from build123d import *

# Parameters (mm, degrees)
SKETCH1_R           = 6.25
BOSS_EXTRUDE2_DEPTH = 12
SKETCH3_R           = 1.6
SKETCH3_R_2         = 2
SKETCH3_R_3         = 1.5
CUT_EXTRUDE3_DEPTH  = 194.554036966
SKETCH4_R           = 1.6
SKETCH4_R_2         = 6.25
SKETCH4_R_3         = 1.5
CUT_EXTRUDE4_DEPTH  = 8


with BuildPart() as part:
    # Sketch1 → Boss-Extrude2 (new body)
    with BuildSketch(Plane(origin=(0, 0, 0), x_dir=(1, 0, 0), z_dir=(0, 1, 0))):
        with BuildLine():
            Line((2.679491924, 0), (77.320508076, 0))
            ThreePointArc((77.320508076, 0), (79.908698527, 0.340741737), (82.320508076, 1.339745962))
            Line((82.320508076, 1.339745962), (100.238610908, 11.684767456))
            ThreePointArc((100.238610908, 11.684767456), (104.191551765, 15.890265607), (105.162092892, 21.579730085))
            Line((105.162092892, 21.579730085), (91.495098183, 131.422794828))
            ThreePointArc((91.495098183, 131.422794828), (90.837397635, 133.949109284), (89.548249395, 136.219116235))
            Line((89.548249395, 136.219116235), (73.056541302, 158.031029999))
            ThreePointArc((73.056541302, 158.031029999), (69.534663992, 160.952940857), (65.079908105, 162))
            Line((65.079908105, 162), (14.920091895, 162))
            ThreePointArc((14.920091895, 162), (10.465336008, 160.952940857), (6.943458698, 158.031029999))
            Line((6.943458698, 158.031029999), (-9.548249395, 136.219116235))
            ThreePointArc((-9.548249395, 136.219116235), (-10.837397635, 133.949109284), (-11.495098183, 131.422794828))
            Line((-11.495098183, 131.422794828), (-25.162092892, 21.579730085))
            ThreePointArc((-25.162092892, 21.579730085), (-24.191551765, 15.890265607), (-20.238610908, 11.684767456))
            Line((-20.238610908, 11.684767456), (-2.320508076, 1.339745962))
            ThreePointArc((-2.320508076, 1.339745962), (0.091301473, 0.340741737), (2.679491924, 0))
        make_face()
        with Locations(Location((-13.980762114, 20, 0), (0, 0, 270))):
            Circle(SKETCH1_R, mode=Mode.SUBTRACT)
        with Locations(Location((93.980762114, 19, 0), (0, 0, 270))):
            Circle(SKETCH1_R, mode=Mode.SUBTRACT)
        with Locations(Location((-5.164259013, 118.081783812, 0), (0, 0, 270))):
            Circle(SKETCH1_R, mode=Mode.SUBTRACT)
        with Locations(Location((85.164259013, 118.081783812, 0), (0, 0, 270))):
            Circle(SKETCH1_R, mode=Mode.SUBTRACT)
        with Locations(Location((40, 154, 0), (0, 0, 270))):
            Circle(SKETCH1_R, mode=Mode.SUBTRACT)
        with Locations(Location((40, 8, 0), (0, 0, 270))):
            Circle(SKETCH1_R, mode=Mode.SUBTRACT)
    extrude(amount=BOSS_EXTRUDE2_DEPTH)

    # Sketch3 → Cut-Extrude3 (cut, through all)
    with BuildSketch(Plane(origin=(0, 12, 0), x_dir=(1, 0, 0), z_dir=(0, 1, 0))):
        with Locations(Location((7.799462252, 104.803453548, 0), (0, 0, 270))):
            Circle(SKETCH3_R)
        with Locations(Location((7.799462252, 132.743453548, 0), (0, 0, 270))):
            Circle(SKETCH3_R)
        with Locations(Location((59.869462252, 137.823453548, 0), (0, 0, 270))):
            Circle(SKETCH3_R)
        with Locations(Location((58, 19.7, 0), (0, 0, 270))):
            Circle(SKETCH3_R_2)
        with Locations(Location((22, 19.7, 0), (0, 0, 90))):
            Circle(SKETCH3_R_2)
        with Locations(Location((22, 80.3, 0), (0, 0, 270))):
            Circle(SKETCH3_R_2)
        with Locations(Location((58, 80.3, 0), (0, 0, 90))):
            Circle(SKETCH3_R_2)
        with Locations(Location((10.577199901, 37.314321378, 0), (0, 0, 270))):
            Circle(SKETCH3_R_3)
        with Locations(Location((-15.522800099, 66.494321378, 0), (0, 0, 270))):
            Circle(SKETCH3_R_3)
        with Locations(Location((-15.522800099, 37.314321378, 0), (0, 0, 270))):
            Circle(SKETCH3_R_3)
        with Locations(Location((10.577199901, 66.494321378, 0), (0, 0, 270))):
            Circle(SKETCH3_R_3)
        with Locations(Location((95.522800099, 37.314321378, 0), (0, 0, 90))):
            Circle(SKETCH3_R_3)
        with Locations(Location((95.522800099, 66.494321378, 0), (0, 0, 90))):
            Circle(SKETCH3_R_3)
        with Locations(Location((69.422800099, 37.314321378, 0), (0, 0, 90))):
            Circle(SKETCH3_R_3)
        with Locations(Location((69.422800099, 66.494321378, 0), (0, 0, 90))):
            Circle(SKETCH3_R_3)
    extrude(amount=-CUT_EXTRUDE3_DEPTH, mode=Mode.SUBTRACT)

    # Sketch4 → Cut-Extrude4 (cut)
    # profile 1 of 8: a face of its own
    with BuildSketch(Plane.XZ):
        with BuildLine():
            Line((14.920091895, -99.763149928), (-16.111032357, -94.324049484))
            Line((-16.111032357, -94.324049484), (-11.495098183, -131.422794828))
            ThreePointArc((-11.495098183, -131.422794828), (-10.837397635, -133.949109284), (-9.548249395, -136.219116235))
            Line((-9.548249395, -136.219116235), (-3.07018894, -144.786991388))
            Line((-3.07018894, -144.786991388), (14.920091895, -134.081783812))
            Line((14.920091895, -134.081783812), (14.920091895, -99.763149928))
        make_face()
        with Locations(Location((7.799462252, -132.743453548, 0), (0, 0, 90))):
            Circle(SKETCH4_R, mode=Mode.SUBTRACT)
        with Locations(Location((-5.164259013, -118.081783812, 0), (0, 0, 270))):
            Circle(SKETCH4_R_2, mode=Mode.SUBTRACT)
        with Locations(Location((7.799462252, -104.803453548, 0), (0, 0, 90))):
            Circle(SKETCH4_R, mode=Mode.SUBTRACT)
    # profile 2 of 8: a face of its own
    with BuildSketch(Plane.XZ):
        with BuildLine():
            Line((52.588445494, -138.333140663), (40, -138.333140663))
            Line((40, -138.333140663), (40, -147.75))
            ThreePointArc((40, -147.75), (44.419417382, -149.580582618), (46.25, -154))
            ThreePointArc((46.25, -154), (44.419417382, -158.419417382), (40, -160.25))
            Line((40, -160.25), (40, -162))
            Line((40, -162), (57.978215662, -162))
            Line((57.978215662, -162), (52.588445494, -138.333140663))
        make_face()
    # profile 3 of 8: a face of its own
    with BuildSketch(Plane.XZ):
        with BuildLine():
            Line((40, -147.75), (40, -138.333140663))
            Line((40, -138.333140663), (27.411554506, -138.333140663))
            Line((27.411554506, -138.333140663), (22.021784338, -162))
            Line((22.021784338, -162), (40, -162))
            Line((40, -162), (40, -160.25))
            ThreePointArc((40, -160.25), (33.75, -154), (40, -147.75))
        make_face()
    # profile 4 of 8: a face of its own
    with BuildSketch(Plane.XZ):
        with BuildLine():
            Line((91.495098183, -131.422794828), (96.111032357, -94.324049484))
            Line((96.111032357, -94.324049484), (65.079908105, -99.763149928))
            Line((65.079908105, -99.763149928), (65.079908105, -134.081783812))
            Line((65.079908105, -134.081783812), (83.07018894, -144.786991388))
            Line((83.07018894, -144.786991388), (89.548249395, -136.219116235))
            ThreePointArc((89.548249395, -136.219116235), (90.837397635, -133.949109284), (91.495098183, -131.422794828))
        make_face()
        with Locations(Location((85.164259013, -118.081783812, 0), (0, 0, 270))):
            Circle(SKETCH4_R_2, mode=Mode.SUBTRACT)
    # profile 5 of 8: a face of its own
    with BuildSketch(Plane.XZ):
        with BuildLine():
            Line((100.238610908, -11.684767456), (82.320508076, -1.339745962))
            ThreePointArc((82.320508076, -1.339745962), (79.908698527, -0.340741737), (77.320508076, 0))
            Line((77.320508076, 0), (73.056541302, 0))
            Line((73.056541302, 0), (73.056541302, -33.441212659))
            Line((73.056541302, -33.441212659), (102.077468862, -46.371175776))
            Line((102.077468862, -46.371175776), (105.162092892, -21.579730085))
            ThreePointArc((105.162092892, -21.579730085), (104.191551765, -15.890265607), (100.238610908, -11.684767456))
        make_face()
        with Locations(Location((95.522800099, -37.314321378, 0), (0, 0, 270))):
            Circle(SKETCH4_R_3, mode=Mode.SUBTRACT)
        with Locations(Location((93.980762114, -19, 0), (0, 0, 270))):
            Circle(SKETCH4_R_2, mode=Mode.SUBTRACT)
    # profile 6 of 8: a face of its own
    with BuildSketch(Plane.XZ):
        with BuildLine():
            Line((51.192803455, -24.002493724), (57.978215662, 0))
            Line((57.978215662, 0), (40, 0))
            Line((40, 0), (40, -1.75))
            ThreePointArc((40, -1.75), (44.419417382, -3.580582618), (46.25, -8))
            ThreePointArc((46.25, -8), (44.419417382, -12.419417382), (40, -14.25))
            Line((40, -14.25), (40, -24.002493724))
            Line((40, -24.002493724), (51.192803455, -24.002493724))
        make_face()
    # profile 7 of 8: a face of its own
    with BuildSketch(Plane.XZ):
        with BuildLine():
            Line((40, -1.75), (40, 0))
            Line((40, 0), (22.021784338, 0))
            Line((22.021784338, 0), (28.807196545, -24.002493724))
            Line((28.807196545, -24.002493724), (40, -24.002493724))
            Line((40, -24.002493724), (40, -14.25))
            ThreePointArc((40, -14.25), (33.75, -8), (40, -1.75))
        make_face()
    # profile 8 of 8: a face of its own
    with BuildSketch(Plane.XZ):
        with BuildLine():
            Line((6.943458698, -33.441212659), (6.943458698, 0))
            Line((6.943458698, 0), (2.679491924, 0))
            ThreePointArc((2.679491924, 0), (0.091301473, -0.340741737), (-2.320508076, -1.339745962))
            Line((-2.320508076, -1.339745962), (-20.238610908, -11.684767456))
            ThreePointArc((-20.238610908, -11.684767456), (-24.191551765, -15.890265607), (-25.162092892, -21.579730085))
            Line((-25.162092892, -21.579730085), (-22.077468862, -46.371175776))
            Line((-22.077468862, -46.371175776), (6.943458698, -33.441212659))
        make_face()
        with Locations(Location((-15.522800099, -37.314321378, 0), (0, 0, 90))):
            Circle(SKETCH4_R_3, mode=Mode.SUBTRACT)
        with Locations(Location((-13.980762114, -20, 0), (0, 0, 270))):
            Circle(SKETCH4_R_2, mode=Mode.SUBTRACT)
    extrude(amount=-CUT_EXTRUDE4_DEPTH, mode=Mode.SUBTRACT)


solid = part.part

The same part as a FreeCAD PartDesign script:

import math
import FreeCAD as App
import Part
import Sketcher
from FreeCAD import Vector
Q = App.Units.Quantity

doc = App.newDocument("Part")
body = doc.addObject("PartDesign::Body", "Body")

sketch1 = body.newObject("Sketcher::SketchObject", "Sketch")
sketch1.AttachmentSupport = (doc.getObject("XZ_Plane"), [""])
sketch1.MapMode = "FlatFace"
sketch1.addGeometry([
    Part.LineSegment(Vector(3, 0, 0), Vector(77, 0, 0)),
    Part.ArcOfCircle(Part.Circle(Vector(77, -10, 0), Vector(0, 0, 1), 10), math.radians(60), math.radians(90)),
    Part.LineSegment(Vector(82, -1, 0), Vector(100, -12, 0)),
    Part.ArcOfCircle(Part.Circle(Vector(95, -20, 0), Vector(0, 0, 1), 10), math.radians(-7), math.radians(60)),
    Part.LineSegment(Vector(105, -22, 0), Vector(91, -131, 0)),
    Part.ArcOfCircle(Part.Circle(Vector(82, -130, 0), Vector(0, 0, 1), 10), math.radians(-37), math.radians(-7)),
    Part.LineSegment(Vector(90, -136, 0), Vector(73, -158, 0)),
    Part.ArcOfCircle(Part.Circle(Vector(65, -152, 0), Vector(0, 0, 1), 10), math.radians(-90), math.radians(-37)),
    Part.LineSegment(Vector(65, -162, 0), Vector(15, -162, 0)),
    Part.ArcOfCircle(Part.Circle(Vector(15, -152, 0), Vector(0, 0, 1), 10), math.radians(-143), math.radians(-90)),
    Part.LineSegment(Vector(7, -158, 0), Vector(-10, -136, 0)),
    Part.ArcOfCircle(Part.Circle(Vector(-2, -130, 0), Vector(0, 0, 1), 10), math.radians(-173), math.radians(-143)),
    Part.LineSegment(Vector(-11, -131, 0), Vector(-25, -22, 0)),
    Part.ArcOfCircle(Part.Circle(Vector(-15, -20, 0), Vector(0, 0, 1), 10), math.radians(120), math.radians(187)),
    Part.LineSegment(Vector(-20, -12, 0), Vector(-2, -1, 0)),
    Part.ArcOfCircle(Part.Circle(Vector(3, -10, 0), Vector(0, 0, 1), 10), math.radians(90), math.radians(120)),
    Part.Circle(Vector(-14, -20, 0), Vector(0, 0, 1), 6),
    Part.Circle(Vector(40, -8, 0), Vector(0, 0, 1), 6),
    Part.Circle(Vector(94, -19, 0), Vector(0, 0, 1), 6),
    Part.Circle(Vector(-5, -118, 0), Vector(0, 0, 1), 6),
    Part.Circle(Vector(40, -154, 0), Vector(0, 0, 1), 6),
    Part.Circle(Vector(85, -118, 0), Vector(0, 0, 1), 6),
], False)
sketch1.addConstraint([
    Sketcher.Constraint("Tangent", 0, 2, 1, 2),
    Sketcher.Constraint("Tangent", 1, 1, 2, 1),
    Sketcher.Constraint("Tangent", 2, 2, 3, 2),
    Sketcher.Constraint("Tangent", 3, 1, 4, 1),
    Sketcher.Constraint("Tangent", 4, 2, 5, 2),
    Sketcher.Constraint("Tangent", 5, 1, 6, 1),
    Sketcher.Constraint("Tangent", 6, 2, 7, 2),
    Sketcher.Constraint("Tangent", 7, 1, 8, 1),
    Sketcher.Constraint("Tangent", 8, 2, 9, 2),
    Sketcher.Constraint("Tangent", 9, 1, 10, 1),
    Sketcher.Constraint("Tangent", 10, 2, 11, 2),
    Sketcher.Constraint("Tangent", 11, 1, 12, 1),
    Sketcher.Constraint("Tangent", 12, 2, 13, 2),
    Sketcher.Constraint("Tangent", 13, 1, 14, 1),
    Sketcher.Constraint("Tangent", 14, 2, 15, 2),
    Sketcher.Constraint("Tangent", 15, 1, 0, 1),
    Sketcher.Constraint("Horizontal", 0),
    Sketcher.Constraint("Horizontal", 8),
    Sketcher.Constraint("Equal", 1, 3),
    Sketcher.Constraint("Equal", 3, 5),
    Sketcher.Constraint("Equal", 5, 7),
    Sketcher.Constraint("Equal", 7, 9),
    Sketcher.Constraint("Equal", 9, 11),
    Sketcher.Constraint("Equal", 11, 13),
    Sketcher.Constraint("Equal", 13, 15),
    Sketcher.Constraint("Equal", 16, 17),
    Sketcher.Constraint("Equal", 17, 18),
    Sketcher.Constraint("Equal", 18, 19),
    Sketcher.Constraint("Equal", 19, 20),
    Sketcher.Constraint("Equal", 20, 21),
    Sketcher.Constraint("PointOnObject", 0, 2, -1),
    Sketcher.Constraint("Horizontal", 5, 3, 11, 3),
    Sketcher.Constraint("Horizontal", 3, 3, 13, 3),
    Sketcher.Constraint("Horizontal", 19, 3, 21, 3),
    Sketcher.Constraint("Horizontal", 6, 2, 9, 1),
    Sketcher.Constraint("Horizontal", 4, 2, 11, 1),
    Sketcher.Constraint("Horizontal", 2, 2, 13, 1),
    Sketcher.Constraint("Vertical", 17, 3, 20, 3),
    Sketcher.Constraint("Radius", 1, 10.0),
    Sketcher.Constraint("Diameter", 16, 12.5),
    Sketcher.Constraint("Angle", 2, Q("-30 deg")),
    Sketcher.Constraint("DistanceY", 7, 3, -1, 1, 152.0),
    Sketcher.Constraint("DistanceY", 16, 3, -1, 1, 20.0),
    Sketcher.Constraint("DistanceX", -1, 1, 17, 3, 40.0),
    Sketcher.Constraint("DistanceY", 17, 3, -1, 1, 8.0),
    Sketcher.Constraint("DistanceY", 18, 3, -1, 1, 19.0),
    Sketcher.Constraint("DistanceY", 20, 3, -1, 1, 154.0),
    Sketcher.Constraint("DistanceX", -1, 1, 4, 2, 91.495098),
    Sketcher.Constraint("DistanceX", 11, 1, -1, 1, 11.495098),
    Sketcher.Constraint("DistanceX", 7, 3, 1, 3, 12.2406),
    Sketcher.Constraint("DistanceX", 0, 1, 0, 2, 74.641016),
    Sketcher.Constraint("DistanceX", -1, 1, 3, 3, 95.238611),
    Sketcher.Constraint("DistanceX", 19, 3, -1, 1, 5.164259),
    Sketcher.Constraint("DistanceX", -1, 1, 21, 3, 85.164259),
    Sketcher.Constraint("DistanceX", -1, 1, 5, 1, 89.548249),
    Sketcher.Constraint("DistanceX", 13, 3, 16, 3, 1.257849),
    Sketcher.Constraint("DistanceX", 18, 3, 3, 3, 1.257849),
    Sketcher.Constraint("DistanceY", 4, 2, 21, 3, 13.341011),
])
pad1 = body.newObject("PartDesign::Pad", "Pad")
pad1.Profile = sketch1
pad1.Length = 12
pad1.Reversed = True

sketch2 = body.newObject("Sketcher::SketchObject", "Sketch001")
sketch2.AttachmentSupport = (doc.getObject("XZ_Plane"), [""])
sketch2.MapMode = "FlatFace"
sketch2.AttachmentOffset = App.Placement(Vector(0, 0, -12), App.Rotation())
sketch2.addGeometry([
    Part.Circle(Vector(7.8, -104.8, 0), Vector(0, 0, 1), 1.6),
    Part.Circle(Vector(7.8, -132.7, 0), Vector(0, 0, 1), 1.6),
    Part.Circle(Vector(59.9, -137.8, 0), Vector(0, 0, 1), 1.6),
    Part.Circle(Vector(58, -19.7, 0), Vector(0, 0, 1), 2),
    Part.Circle(Vector(22, -19.7, 0), Vector(0, 0, 1), 2),
    Part.Circle(Vector(22, -80.3, 0), Vector(0, 0, 1), 2),
    Part.Circle(Vector(58, -80.3, 0), Vector(0, 0, 1), 2),
    Part.Circle(Vector(10.6, -37.3, 0), Vector(0, 0, 1), 1.5),
    Part.Circle(Vector(-15.5, -66.5, 0), Vector(0, 0, 1), 1.5),
    Part.Circle(Vector(-15.5, -37.3, 0), Vector(0, 0, 1), 1.5),
    Part.Circle(Vector(10.6, -66.5, 0), Vector(0, 0, 1), 1.5),
    Part.Circle(Vector(95.5, -37.3, 0), Vector(0, 0, 1), 1.5),
    Part.Circle(Vector(95.5, -66.5, 0), Vector(0, 0, 1), 1.5),
    Part.Circle(Vector(69.4, -37.3, 0), Vector(0, 0, 1), 1.5),
    Part.Circle(Vector(69.4, -66.5, 0), Vector(0, 0, 1), 1.5),
], False)
sketch2.addConstraint([
    Sketcher.Constraint("Equal", 0, 1),
    Sketcher.Constraint("Equal", 1, 2),
    Sketcher.Constraint("Equal", 3, 4),
    Sketcher.Constraint("Equal", 4, 5),
    Sketcher.Constraint("Equal", 5, 6),
    Sketcher.Constraint("Equal", 7, 8),
    Sketcher.Constraint("Equal", 8, 9),
    Sketcher.Constraint("Equal", 9, 10),
    Sketcher.Constraint("Equal", 10, 11),
    Sketcher.Constraint("Equal", 11, 12),
    Sketcher.Constraint("Equal", 12, 13),
    Sketcher.Constraint("Equal", 13, 14),
    Sketcher.Constraint("Horizontal", 3, 3, 4, 3),
    Sketcher.Constraint("Horizontal", 5, 3, 6, 3),
    Sketcher.Constraint("Horizontal", 7, 3, 9, 3),
    Sketcher.Constraint("Horizontal", 8, 3, 10, 3),
    Sketcher.Constraint("Horizontal", 9, 3, 11, 3),
    Sketcher.Constraint("Horizontal", 10, 3, 12, 3),
    Sketcher.Constraint("Horizontal", 11, 3, 13, 3),
    Sketcher.Constraint("Horizontal", 12, 3, 14, 3),
    Sketcher.Constraint("Vertical", 0, 3, 1, 3),
    Sketcher.Constraint("Vertical", 4, 3, 5, 3),
    Sketcher.Constraint("Vertical", 3, 3, 6, 3),
    Sketcher.Constraint("Vertical", 8, 3, 9, 3),
    Sketcher.Constraint("Vertical", 7, 3, 10, 3),
    Sketcher.Constraint("Vertical", 11, 3, 12, 3),
    Sketcher.Constraint("Vertical", 13, 3, 14, 3),
    Sketcher.Constraint("Diameter", 3, 4.0),
    Sketcher.Constraint("Diameter", 7, 3.0),
    Sketcher.Constraint("Diameter", 0, 3.2),
    Sketcher.Constraint("DistanceX", -1, 1, 3, 3, 58.0),
    Sketcher.Constraint("DistanceX", -1, 1, 4, 3, 22.0),
    Sketcher.Constraint("DistanceY", 3, 3, -1, 1, 19.7),
    Sketcher.Constraint("DistanceY", 5, 3, -1, 1, 80.3),
    Sketcher.Constraint("DistanceX", 8, 3, 7, 3, 26.1),
    Sketcher.Constraint("DistanceX", 13, 3, 11, 3, 26.1),
    Sketcher.Constraint("DistanceY", 1, 3, 0, 3, 27.94),
    Sketcher.Constraint("DistanceX", 1, 3, 2, 3, 52.07),
    Sketcher.Constraint("DistanceY", 2, 3, 1, 3, 5.08),
    Sketcher.Constraint("DistanceY", 8, 3, 7, 3, 29.18),
    Sketcher.Constraint("DistanceX", -1, 1, 7, 3, 10.5772),
    Sketcher.Constraint("DistanceX", -1, 1, 11, 3, 95.5228),
    Sketcher.Constraint("DistanceY", 7, 3, -1, 1, 37.314321),
    Sketcher.Constraint("DistanceX", -1, 1, 0, 3, 7.799462),
    Sketcher.Constraint("DistanceY", 0, 3, -1, 1, 104.803454),
])
pocket1 = body.newObject("PartDesign::Pocket", "Pocket")
pocket1.Profile = sketch2
pocket1.Type = "ThroughAll"
pocket1.Reversed = True

sketch3 = body.newObject("Sketcher::SketchObject", "Sketch002")
sketch3.AttachmentSupport = (doc.getObject("XZ_Plane"), [""])
sketch3.MapMode = "FlatFace"
sketch3.addGeometry([
    Part.LineSegment(Vector(14.9, -99.8, 0), Vector(-16.1, -94.3, 0)),
    Part.LineSegment(Vector(-16.1, -94.3, 0), Vector(-11.5, -131.4, 0)),
    Part.ArcOfCircle(Part.Circle(Vector(-1.6, -130.2, 0), Vector(0, 0, 1), 10), math.radians(-173), math.radians(-143)),
    Part.LineSegment(Vector(-9.5, -136.2, 0), Vector(-3.1, -144.8, 0)),
    Part.LineSegment(Vector(-3.1, -144.8, 0), Vector(14.9, -134.1, 0)),
    Part.LineSegment(Vector(14.9, -134.1, 0), Vector(14.9, -99.8, 0)),
    Part.Circle(Vector(7.8, -132.7, 0), Vector(0, 0, 1), 1.6),
    Part.Circle(Vector(-5.2, -118.1, 0), Vector(0, 0, 1), 6.2),
    Part.Circle(Vector(7.8, -104.8, 0), Vector(0, 0, 1), 1.6),
    Part.LineSegment(Vector(52.6, -138.3, 0), Vector(27.4, -138.3, 0)),
    Part.LineSegment(Vector(27.4, -138.3, 0), Vector(22, -162, 0)),
    Part.LineSegment(Vector(22, -162, 0), Vector(58, -162, 0)),
    Part.LineSegment(Vector(58, -162, 0), Vector(52.6, -138.3, 0)),
    Part.ArcOfCircle(Part.Circle(Vector(40, -154, 0), Vector(0, 0, 1), 6.3), math.radians(0), math.radians(90)),
    Part.ArcOfCircle(Part.Circle(Vector(40, -154, 0), Vector(0, 0, 1), 6.3), math.radians(-90), math.radians(0)),
    Part.ArcOfCircle(Part.Circle(Vector(40, -154, 0), Vector(0, 0, 1), 6.2), math.radians(90), math.radians(270)),
    Part.LineSegment(Vector(91.5, -131.4, 0), Vector(96.1, -94.3, 0)),
    Part.LineSegment(Vector(96.1, -94.3, 0), Vector(65.1, -99.8, 0)),
    Part.LineSegment(Vector(65.1, -99.8, 0), Vector(65.1, -134.1, 0)),
    Part.LineSegment(Vector(65.1, -134.1, 0), Vector(83.1, -144.8, 0)),
    Part.LineSegment(Vector(83.1, -144.8, 0), Vector(89.5, -136.2, 0)),
    Part.ArcOfCircle(Part.Circle(Vector(81.6, -130.2, 0), Vector(0, 0, 1), 10), math.radians(-37), math.radians(-7)),
    Part.Circle(Vector(85.2, -118.1, 0), Vector(0, 0, 1), 6.2),
    Part.LineSegment(Vector(100.2, -11.7, 0), Vector(82.3, -1.3, 0)),
    Part.ArcOfCircle(Part.Circle(Vector(77.3, -10, 0), Vector(0, 0, 1), 10), math.radians(60), math.radians(90)),
    Part.LineSegment(Vector(77.3, 0, 0), Vector(73.1, 0, 0)),
    Part.LineSegment(Vector(73.1, 0, 0), Vector(73.1, -33.4, 0)),
    Part.LineSegment(Vector(73.1, -33.4, 0), Vector(102.1, -46.4, 0)),
    Part.LineSegment(Vector(102.1, -46.4, 0), Vector(105.2, -21.6, 0)),
    Part.ArcOfCircle(Part.Circle(Vector(95.2, -20.3, 0), Vector(0, 0, 1), 10), math.radians(-7), math.radians(60)),
    Part.Circle(Vector(95.5, -37.3, 0), Vector(0, 0, 1), 1.5),
    Part.Circle(Vector(94, -19, 0), Vector(0, 0, 1), 6.2),
    Part.LineSegment(Vector(51.2, -24, 0), Vector(58, 0, 0)),
    Part.LineSegment(Vector(58, 0, 0), Vector(22, 0, 0)),
    Part.LineSegment(Vector(22, 0, 0), Vector(28.8, -24, 0)),
    Part.LineSegment(Vector(28.8, -24, 0), Vector(51.2, -24, 0)),
    Part.ArcOfCircle(Part.Circle(Vector(40, -8, 0), Vector(0, 0, 1), 6.3), math.radians(0), math.radians(90)),
    Part.ArcOfCircle(Part.Circle(Vector(40, -8, 0), Vector(0, 0, 1), 6.3), math.radians(-90), math.radians(0)),
    Part.ArcOfCircle(Part.Circle(Vector(40, -8, 0), Vector(0, 0, 1), 6.2), math.radians(90), math.radians(270)),
    Part.LineSegment(Vector(6.9, -33.4, 0), Vector(6.9, 0, 0)),
    Part.LineSegment(Vector(6.9, 0, 0), Vector(2.7, 0, 0)),
    Part.ArcOfCircle(Part.Circle(Vector(2.7, -10, 0), Vector(0, 0, 1), 10), math.radians(90), math.radians(120)),
    Part.LineSegment(Vector(-2.3, -1.3, 0), Vector(-20.2, -11.7, 0)),
    Part.ArcOfCircle(Part.Circle(Vector(-15.2, -20.3, 0), Vector(0, 0, 1), 10), math.radians(120), math.radians(187)),
    Part.LineSegment(Vector(-25.2, -21.6, 0), Vector(-22.1, -46.4, 0)),
    Part.LineSegment(Vector(-22.1, -46.4, 0), Vector(6.9, -33.4, 0)),
    Part.Circle(Vector(-15.5, -37.3, 0), Vector(0, 0, 1), 1.5),
    Part.Circle(Vector(-14, -20, 0), Vector(0, 0, 1), 6.2),
], False)
sketch3.addConstraint([
    Sketcher.Constraint("Coincident", 0, 2, 1, 1),
    Sketcher.Constraint("Tangent", 1, 2, 2, 1),
    Sketcher.Constraint("Tangent", 2, 2, 3, 1),
    Sketcher.Constraint("Coincident", 3, 2, 4, 1),
    Sketcher.Constraint("Coincident", 4, 2, 5, 1),
    Sketcher.Constraint("Coincident", 5, 2, 0, 1),
    Sketcher.Constraint("Coincident", 9, 2, 10, 1),
    Sketcher.Constraint("Coincident", 10, 2, 11, 1),
    Sketcher.Constraint("Coincident", 11, 2, 12, 1),
    Sketcher.Constraint("Coincident", 12, 2, 9, 1),
    Sketcher.Constraint("Tangent", 13, 1, 14, 2),
    Sketcher.Constraint("Tangent", 14, 1, 15, 2),
    Sketcher.Constraint("Tangent", 15, 1, 13, 2),
    Sketcher.Constraint("Coincident", 16, 2, 17, 1),
    Sketcher.Constraint("Coincident", 17, 2, 18, 1),
    Sketcher.Constraint("Coincident", 18, 2, 19, 1),
    Sketcher.Constraint("Coincident", 19, 2, 20, 1),
    Sketcher.Constraint("Tangent", 20, 2, 21, 1),
    Sketcher.Constraint("Tangent", 21, 2, 16, 1),
    Sketcher.Constraint("Tangent", 23, 2, 24, 1),
    Sketcher.Constraint("Tangent", 24, 2, 25, 1),
    Sketcher.Constraint("Coincident", 25, 2, 26, 1),
    Sketcher.Constraint("Coincident", 26, 2, 27, 1),
    Sketcher.Constraint("Coincident", 27, 2, 28, 1),
    Sketcher.Constraint("Tangent", 28, 2, 29, 1),
    Sketcher.Constraint("Tangent", 29, 2, 23, 1),
    Sketcher.Constraint("Coincident", 32, 2, 33, 1),
    Sketcher.Constraint("Coincident", 33, 2, 34, 1),
    Sketcher.Constraint("Coincident", 34, 2, 35, 1),
    Sketcher.Constraint("Coincident", 35, 2, 32, 1),
    Sketcher.Constraint("Tangent", 36, 1, 37, 2),
    Sketcher.Constraint("Tangent", 37, 1, 38, 2),
    Sketcher.Constraint("Tangent", 38, 1, 36, 2),
    Sketcher.Constraint("Coincident", 39, 2, 40, 1),
    Sketcher.Constraint("Tangent", 40, 2, 41, 1),
    Sketcher.Constraint("Tangent", 41, 2, 42, 1),
    Sketcher.Constraint("Tangent", 42, 2, 43, 1),
    Sketcher.Constraint("Tangent", 43, 2, 44, 1),
    Sketcher.Constraint("Coincident", 44, 2, 45, 1),
    Sketcher.Constraint("Coincident", 45, 2, 39, 1),
    Sketcher.Constraint("Vertical", 5),
    Sketcher.Constraint("Horizontal", 9),
    Sketcher.Constraint("Horizontal", 11),
    Sketcher.Constraint("Vertical", 18),
    Sketcher.Constraint("Horizontal", 25),
    Sketcher.Constraint("Vertical", 26),
    Sketcher.Constraint("Horizontal", 33),
    Sketcher.Constraint("Horizontal", 35),
    Sketcher.Constraint("Vertical", 39),
    Sketcher.Constraint("Horizontal", 40),
    Sketcher.Constraint("Equal", 6, 8),
    Sketcher.Constraint("Equal", 7, 13),
    Sketcher.Constraint("Equal", 2, 21),
    Sketcher.Constraint("Equal", 15, 22),
    Sketcher.Constraint("Equal", 21, 24),
    Sketcher.Constraint("Equal", 24, 29),
    Sketcher.Constraint("Equal", 22, 31),
    Sketcher.Constraint("Equal", 31, 36),
    Sketcher.Constraint("Equal", 29, 41),
    Sketcher.Constraint("Equal", 41, 43),
    Sketcher.Constraint("Equal", 30, 46),
    Sketcher.Constraint("Equal", 38, 47),
    Sketcher.Constraint("PointOnObject", 24, 2, -1),
    Sketcher.Constraint("PointOnObject", 32, 2, -1),
    Sketcher.Constraint("PointOnObject", 39, 2, -1),
    Sketcher.Constraint("Parallel", 16, 28),
    Sketcher.Constraint("Parallel", 1, 44),
    Sketcher.Constraint("Horizontal", 2, 3, 21, 3),
    Sketcher.Constraint("Horizontal", 7, 3, 22, 3),
    Sketcher.Constraint("Horizontal", 29, 3, 43, 3),
    Sketcher.Constraint("Horizontal", 30, 3, 46, 3),
    Sketcher.Constraint("Horizontal", 15, 3, 13, 1),
    Sketcher.Constraint("Horizontal", 0, 2, 16, 2),
    Sketcher.Constraint("Horizontal", 5, 2, 17, 2),
    Sketcher.Constraint("Horizontal", 4, 2, 18, 2),
    Sketcher.Constraint("Horizontal", 3, 2, 19, 2),
    Sketcher.Constraint("Horizontal", 2, 2, 20, 2),
    Sketcher.Constraint("Horizontal", 1, 2, 21, 2),
    Sketcher.Constraint("Horizontal", 38, 3, 36, 1),
    Sketcher.Constraint("Horizontal", 23, 2, 41, 2),
    Sketcher.Constraint("Horizontal", 27, 2, 44, 2),
    Sketcher.Constraint("Horizontal", 26, 2, 45, 2),
    Sketcher.Constraint("Vertical", 6, 3, 8, 3),
    Sketcher.Constraint("Vertical", 15, 3, 36, 3),
    Sketcher.Constraint("Vertical", 38, 3, 14, 1),
    Sketcher.Constraint("Vertical", 14, 1, 15, 1),
    Sketcher.Constraint("Vertical", 11, 2, 32, 2),
    Sketcher.Constraint("Vertical", 10, 2, 33, 2),
    Sketcher.Constraint("Vertical", 15, 1, 37, 1),
    Sketcher.Constraint("Vertical", 37, 1, 38, 1),
    Sketcher.Constraint("Equal", 25, 40),
    Sketcher.Constraint("Equal", 10, 12),
    Sketcher.Constraint("Equal", 0, 17),
    Sketcher.Constraint("Equal", 32, 34),
    Sketcher.Constraint("Diameter", 30, 3.0),
    Sketcher.Constraint("Radius", 2, 10.0),
    Sketcher.Constraint("Diameter", 6, 3.2),
    Sketcher.Constraint("Diameter", 7, 12.5),
    Sketcher.Constraint("Angle", 23, Q("150 deg")),
    Sketcher.Constraint("DistanceX", -1, 1, 13, 3, 40.0),
    Sketcher.Constraint("DistanceY", 13, 3, -1, 1, 154.0),
    Sketcher.Constraint("DistanceY", 31, 3, -1, 1, 19.0),
    Sketcher.Constraint("DistanceY", 36, 3, -1, 1, 8.0),
    Sketcher.Constraint("DistanceY", 47, 3, -1, 1, 20.0),
    Sketcher.Constraint("DistanceY", 10, 2, -1, 1, 162.0),
    Sketcher.Constraint("DistanceY", 4, 2, 7, 3, 16.0),
    Sketcher.Constraint("DistanceY", 6, 3, 8, 3, 27.94),
    Sketcher.Constraint("DistanceX", 9, 2, 9, 1, 25.176891),
    Sketcher.Constraint("DistanceX", 11, 1, 11, 2, 35.956431),
    Sketcher.Constraint("DistanceX", -1, 1, 30, 3, 95.5228),
    Sketcher.Constraint("DistanceX", 46, 3, -1, 1, 15.5228),
    Sketcher.Constraint("DistanceX", 1, 2, -1, 1, 11.495098),
    Sketcher.Constraint("DistanceX", -1, 1, 21, 2, 91.495098),
    Sketcher.Constraint("DistanceY", 30, 3, 29, 3, 16.9693),
    Sketcher.Constraint("DistanceY", 5, 2, 0, 2, 5.4391),
    Sketcher.Constraint("Distance", 4, 20.934461),
    Sketcher.Constraint("Distance", 10, 24.272821),
    Sketcher.Constraint("DistanceX", 25, 2, 25, 1, 4.263967),
    Sketcher.Constraint("DistanceX", 35, 1, 35, 2, 22.385607),
    Sketcher.Constraint("DistanceY", 5, 1, 5, 2, 34.318634),
    Sketcher.Constraint("DistanceY", 26, 2, 26, 1, 33.441213),
    Sketcher.Constraint("DistanceX", 7, 3, -1, 1, 5.164259),
    Sketcher.Constraint("DistanceX", -1, 1, 22, 3, 85.164259),
    Sketcher.Constraint("DistanceX", -1, 1, 24, 3, 77.320508),
    Sketcher.Constraint("DistanceX", -1, 1, 29, 3, 95.238611),
    Sketcher.Constraint("DistanceX", -1, 1, 41, 3, 2.679492),
    Sketcher.Constraint("DistanceY", 0, 2, -1, 1, 94.324049),
    Sketcher.Constraint("DistanceX", 2, 2, -1, 1, 9.548249),
    Sketcher.Constraint("DistanceX", 3, 2, -1, 1, 3.070189),
    Sketcher.Constraint("DistanceY", 3, 2, -1, 1, 144.786991),
    Sketcher.Constraint("DistanceX", -1, 1, 27, 2, 102.077469),
    Sketcher.Constraint("DistanceY", 28, 2, -1, 1, 21.57973),
    Sketcher.Constraint("DistanceX", 2, 3, 6, 3, 9.371078),
    Sketcher.Constraint("DistanceY", 6, 3, 7, 3, 14.66167),
    Sketcher.Constraint("DistanceX", 31, 3, 29, 3, 1.257849),
    Sketcher.Constraint("DistanceX", 43, 3, 47, 3, 1.257849),
    Sketcher.Constraint("DistanceY", 26, 2, 35, 2, 9.438719),
    Sketcher.Constraint("DistanceX", -1, 1, 9, 2, 27.411555),
])
pocket2 = body.newObject("PartDesign::Pocket", "Pocket001")
pocket2.Profile = sketch3
pocket2.Length = 8

doc.recompute()
